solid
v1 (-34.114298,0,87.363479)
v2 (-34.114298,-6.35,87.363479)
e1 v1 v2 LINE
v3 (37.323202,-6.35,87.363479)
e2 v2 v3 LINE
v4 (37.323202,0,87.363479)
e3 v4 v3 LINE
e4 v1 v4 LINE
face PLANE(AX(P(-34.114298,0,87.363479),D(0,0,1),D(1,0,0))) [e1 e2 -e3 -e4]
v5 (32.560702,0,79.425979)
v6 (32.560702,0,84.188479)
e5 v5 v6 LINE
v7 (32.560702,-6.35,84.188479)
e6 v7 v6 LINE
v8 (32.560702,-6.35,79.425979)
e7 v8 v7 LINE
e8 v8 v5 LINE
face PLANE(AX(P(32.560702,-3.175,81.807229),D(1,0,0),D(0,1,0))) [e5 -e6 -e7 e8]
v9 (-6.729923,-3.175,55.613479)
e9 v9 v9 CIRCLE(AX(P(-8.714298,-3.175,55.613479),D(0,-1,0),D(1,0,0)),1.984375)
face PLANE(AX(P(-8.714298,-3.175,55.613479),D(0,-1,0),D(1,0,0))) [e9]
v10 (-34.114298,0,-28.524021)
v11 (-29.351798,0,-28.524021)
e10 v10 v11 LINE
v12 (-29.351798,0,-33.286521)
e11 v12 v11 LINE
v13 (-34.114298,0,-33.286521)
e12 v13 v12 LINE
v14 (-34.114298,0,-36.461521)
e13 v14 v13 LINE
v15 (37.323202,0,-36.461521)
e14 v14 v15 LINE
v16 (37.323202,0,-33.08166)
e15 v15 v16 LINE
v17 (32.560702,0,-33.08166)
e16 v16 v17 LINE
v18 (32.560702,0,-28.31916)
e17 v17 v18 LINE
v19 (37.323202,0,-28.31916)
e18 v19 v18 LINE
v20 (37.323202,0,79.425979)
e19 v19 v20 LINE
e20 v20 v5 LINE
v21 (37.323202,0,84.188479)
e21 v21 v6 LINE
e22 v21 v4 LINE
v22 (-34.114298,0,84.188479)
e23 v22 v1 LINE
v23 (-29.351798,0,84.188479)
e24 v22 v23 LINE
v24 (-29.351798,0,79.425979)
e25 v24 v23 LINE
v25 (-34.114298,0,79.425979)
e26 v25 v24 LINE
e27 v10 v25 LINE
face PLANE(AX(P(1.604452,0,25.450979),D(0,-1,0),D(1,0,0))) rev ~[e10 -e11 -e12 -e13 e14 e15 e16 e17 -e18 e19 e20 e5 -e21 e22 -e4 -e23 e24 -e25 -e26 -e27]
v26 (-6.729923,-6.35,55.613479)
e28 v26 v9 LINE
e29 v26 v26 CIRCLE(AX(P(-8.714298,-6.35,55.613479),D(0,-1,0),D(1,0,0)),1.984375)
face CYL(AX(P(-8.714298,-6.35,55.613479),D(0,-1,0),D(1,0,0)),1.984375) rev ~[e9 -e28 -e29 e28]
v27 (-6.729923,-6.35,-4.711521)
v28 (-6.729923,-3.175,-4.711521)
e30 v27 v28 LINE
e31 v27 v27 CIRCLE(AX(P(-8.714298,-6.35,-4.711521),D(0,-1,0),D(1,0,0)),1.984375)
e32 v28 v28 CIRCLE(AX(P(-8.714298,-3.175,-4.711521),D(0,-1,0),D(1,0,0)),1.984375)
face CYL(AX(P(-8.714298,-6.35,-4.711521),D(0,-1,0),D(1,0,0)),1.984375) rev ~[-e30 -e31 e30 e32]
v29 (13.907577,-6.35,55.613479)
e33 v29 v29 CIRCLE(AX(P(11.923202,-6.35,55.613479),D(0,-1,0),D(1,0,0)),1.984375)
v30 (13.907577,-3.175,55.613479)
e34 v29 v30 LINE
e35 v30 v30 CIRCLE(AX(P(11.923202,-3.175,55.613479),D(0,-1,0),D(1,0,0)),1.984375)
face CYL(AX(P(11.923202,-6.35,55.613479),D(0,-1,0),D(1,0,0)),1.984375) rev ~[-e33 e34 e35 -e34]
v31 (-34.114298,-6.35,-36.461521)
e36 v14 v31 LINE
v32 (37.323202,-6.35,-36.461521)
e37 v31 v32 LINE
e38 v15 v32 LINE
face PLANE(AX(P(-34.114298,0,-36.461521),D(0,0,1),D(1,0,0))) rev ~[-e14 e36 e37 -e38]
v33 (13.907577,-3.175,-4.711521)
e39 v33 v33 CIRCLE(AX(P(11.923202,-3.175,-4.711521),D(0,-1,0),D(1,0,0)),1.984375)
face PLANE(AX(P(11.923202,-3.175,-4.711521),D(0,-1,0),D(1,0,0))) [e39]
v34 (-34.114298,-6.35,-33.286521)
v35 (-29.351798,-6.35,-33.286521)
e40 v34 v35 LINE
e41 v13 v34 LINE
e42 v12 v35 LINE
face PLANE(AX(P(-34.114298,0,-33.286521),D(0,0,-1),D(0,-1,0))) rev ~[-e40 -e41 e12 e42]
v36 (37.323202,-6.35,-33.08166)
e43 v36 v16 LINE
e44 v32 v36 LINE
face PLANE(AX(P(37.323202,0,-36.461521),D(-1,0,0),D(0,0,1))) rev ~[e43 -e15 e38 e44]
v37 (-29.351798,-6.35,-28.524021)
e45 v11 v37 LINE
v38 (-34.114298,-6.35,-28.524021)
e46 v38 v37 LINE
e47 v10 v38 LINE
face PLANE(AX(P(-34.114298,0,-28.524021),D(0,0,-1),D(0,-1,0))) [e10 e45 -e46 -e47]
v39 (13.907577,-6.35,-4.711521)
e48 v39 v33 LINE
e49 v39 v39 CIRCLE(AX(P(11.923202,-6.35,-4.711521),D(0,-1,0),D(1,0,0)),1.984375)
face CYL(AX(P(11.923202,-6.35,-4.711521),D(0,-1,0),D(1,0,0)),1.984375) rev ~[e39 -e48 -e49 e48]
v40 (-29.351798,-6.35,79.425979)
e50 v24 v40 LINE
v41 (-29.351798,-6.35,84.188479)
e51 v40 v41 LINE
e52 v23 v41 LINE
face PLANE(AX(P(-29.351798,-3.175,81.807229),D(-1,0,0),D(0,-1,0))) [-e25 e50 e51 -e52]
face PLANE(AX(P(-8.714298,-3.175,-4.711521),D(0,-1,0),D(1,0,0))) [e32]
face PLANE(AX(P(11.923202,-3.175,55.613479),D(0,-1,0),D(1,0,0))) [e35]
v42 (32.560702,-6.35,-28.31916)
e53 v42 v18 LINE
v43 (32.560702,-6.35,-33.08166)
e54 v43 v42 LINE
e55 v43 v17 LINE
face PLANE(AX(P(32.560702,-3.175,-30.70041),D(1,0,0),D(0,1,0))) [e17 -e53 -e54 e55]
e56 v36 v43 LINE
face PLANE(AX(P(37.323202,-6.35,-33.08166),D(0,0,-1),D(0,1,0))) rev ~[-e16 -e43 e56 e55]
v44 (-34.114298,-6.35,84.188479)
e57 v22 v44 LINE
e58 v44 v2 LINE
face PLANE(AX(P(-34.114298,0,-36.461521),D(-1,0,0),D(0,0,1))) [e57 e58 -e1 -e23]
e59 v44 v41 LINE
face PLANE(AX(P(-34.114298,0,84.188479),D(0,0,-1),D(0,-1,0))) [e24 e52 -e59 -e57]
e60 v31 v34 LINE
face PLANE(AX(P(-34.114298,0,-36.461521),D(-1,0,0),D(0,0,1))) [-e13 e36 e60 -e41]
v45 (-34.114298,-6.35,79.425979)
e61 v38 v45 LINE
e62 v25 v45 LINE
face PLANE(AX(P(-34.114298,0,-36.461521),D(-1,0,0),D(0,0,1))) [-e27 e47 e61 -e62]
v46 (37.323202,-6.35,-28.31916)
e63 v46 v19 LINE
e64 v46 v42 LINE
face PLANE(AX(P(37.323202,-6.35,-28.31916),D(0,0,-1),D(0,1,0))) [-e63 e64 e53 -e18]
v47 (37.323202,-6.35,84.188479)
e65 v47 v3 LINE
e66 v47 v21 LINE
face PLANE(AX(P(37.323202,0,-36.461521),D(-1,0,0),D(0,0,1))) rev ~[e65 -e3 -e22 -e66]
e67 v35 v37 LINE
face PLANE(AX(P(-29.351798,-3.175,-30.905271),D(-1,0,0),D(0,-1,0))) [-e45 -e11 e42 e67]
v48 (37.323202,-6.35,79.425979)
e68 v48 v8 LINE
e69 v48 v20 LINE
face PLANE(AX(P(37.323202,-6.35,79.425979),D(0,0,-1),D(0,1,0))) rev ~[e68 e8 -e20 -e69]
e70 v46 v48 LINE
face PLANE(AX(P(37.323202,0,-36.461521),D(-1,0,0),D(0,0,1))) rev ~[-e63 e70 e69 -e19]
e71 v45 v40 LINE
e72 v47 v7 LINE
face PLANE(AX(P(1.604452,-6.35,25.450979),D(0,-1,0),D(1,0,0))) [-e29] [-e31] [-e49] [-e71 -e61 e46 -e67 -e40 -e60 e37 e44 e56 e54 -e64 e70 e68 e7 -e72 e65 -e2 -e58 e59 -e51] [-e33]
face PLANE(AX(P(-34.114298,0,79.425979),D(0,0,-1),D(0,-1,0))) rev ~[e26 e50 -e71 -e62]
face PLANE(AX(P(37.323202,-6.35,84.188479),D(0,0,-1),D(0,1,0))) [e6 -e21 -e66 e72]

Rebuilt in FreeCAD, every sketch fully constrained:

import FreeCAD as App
import Part
import Sketcher
from FreeCAD import Vector
Q = App.Units.Quantity


def add_polygon(sketch, points):
    """Adds a closed chain of lines whose ends are joined by coincident constraints."""
    first, n = sketch.GeometryCount, len(points)
    for a, b in zip(points, points[1:] + points[:1]):
        sketch.addGeometry(Part.LineSegment(App.Vector(*a, 0), App.Vector(*b, 0)), False)
    for i in range(n):
        sketch.addConstraint(Sketcher.Constraint("Coincident", first + i, 2, first + (i + 1) % n, 1))

doc = App.newDocument("Part")
params = doc.addObject("Spreadsheet::Sheet", "Params")
for row, (alias, value) in enumerate([
    ("sketch1_width", "2.8125 in"),
    ("sketch1_height", "4.875 in"),
    ("pad1_length", "0.25 in"),
    ("sketch2_width", "0.25 in"),
    ("sketch2_height", "0.1875 in"),
    ("pocket1_length", "0.1875 in"),
    ("sketch3_width", "0.25 in"),
    ("sketch3_height", "0.1875 in"),
    ("pocket2_length", "0.1875 in"),
    ("sketch4_width", "0.25 in"),
    ("sketch4_height", "0.1875 in"),
    ("pocket3_length", "0.1875 in"),
    ("sketch5_width", "0.25 in"),
    ("sketch5_height", "0.1875 in"),
    ("pocket4_length", "0.1875 in"),
    ("sketch6_diameter", "0.15625 in"),
    ("pocket5_length", "0.125 in"),
], start=1):
    params.set(f"A{row}", alias)
    params.set(f"B{row}", "=" + value)
    params.setAlias(f"B{row}", alias)

body = doc.addObject("PartDesign::Body", "Body")

# Sketch on XZ plane
sketch1 = doc.addObject("Sketcher::SketchObject", "Sketch")
body.addObject(sketch1)
sketch1.AttachmentSupport = (doc.XZ_Plane, [""])
sketch1.MapMode = "FlatFace"
add_polygon(sketch1, [(-34.114298, 87.363479), (-34.114298, -36.461521), (37.323202, -36.461521), (37.323202, 87.363479)])  # lines 0-3
sketch1.addConstraint([
    Sketcher.Constraint("Vertical", 0),
    Sketcher.Constraint("Horizontal", 1),
    Sketcher.Constraint("Vertical", 2),
    Sketcher.Constraint("Horizontal", 3),
    Sketcher.Constraint("DistanceX", 1, 1, 1, 2, Q("2.8125 in")),
    Sketcher.Constraint("DistanceY", 0, 2, 0, 1, Q("4.875 in")),
    Sketcher.Constraint("DistanceY", 0, 2, -1, 1, Q("36.461521 mm")),
    Sketcher.Constraint("DistanceX", 0, 2, -1, 1, Q("34.114298 mm")),
])
sketch1.setExpression("Constraints[8]", "Params.sketch1_width")
sketch1.setExpression("Constraints[9]", "Params.sketch1_height")
pad1 = doc.addObject("PartDesign::Pad", "Pad")
body.addObject(pad1)
pad1.Profile = sketch1
pad1.setExpression("Length", "Params.pad1_length")

# Sketch on YZ plane
sketch2 = doc.addObject("Sketcher::SketchObject", "Sketch001")
body.addObject(sketch2)
sketch2.AttachmentSupport = (doc.YZ_Plane, [""])
sketch2.MapMode = "FlatFace"
sketch2.AttachmentOffset = App.Placement(Vector(0, 0, 37.323202), App.Rotation())
add_polygon(sketch2, [(-6.35, 84.188479), (-6.35, 79.425979), (0, 79.425979), (0, 84.188479)])  # lines 0-3
sketch2.addConstraint([
    Sketcher.Constraint("Vertical", 0),
    Sketcher.Constraint("Horizontal", 1),
    Sketcher.Constraint("Vertical", 2),
    Sketcher.Constraint("Horizontal", 3),
    Sketcher.Constraint("PointOnObject", 1, 2, -2),
    Sketcher.Constraint("DistanceX", 1, 1, 1, 2, Q("0.25 in")),
    Sketcher.Constraint("DistanceY", 0, 2, 0, 1, Q("0.1875 in")),
    Sketcher.Constraint("DistanceY", -1, 1, 0, 2, Q("79.425979 mm")),
])
sketch2.setExpression("Constraints[9]", "Params.sketch2_width")
sketch2.setExpression("Constraints[10]", "Params.sketch2_height")
pocket1 = doc.addObject("PartDesign::Pocket", "Pocket")
body.addObject(pocket1)
pocket1.Profile = sketch2
pocket1.setExpression("Length", "Params.pocket1_length")

# Sketch on YZ plane
sketch3 = doc.addObject("Sketcher::SketchObject", "Sketch002")
body.addObject(sketch3)
sketch3.AttachmentSupport = (doc.YZ_Plane, [""])
sketch3.MapMode = "FlatFace"
sketch3.AttachmentOffset = App.Placement(Vector(0, 0, 37.323202), App.Rotation())
add_polygon(sketch3, [(-6.35, -28.31916), (-6.35, -33.08166), (0, -33.08166), (0, -28.31916)])  # lines 0-3
sketch3.addConstraint([
    Sketcher.Constraint("Vertical", 0),
    Sketcher.Constraint("Horizontal", 1),
    Sketcher.Constraint("Vertical", 2),
    Sketcher.Constraint("Horizontal", 3),
    Sketcher.Constraint("PointOnObject", 1, 2, -2),
    Sketcher.Constraint("DistanceX", 1, 1, 1, 2, Q("0.25 in")),
    Sketcher.Constraint("DistanceY", 0, 2, 0, 1, Q("0.1875 in")),
    Sketcher.Constraint("DistanceY", 0, 2, -1, 1, Q("33.08166 mm")),
])
sketch3.setExpression("Constraints[9]", "Params.sketch3_width")
sketch3.setExpression("Constraints[10]", "Params.sketch3_height")
pocket2 = doc.addObject("PartDesign::Pocket", "Pocket001")
body.addObject(pocket2)
pocket2.Profile = sketch3
pocket2.setExpression("Length", "Params.pocket2_length")

# Sketch on YZ plane
sketch4 = doc.addObject("Sketcher::SketchObject", "Sketch003")
body.addObject(sketch4)
sketch4.AttachmentSupport = (doc.YZ_Plane, [""])
sketch4.MapMode = "FlatFace"
sketch4.AttachmentOffset = App.Placement(Vector(0, 0, -34.114298), App.Rotation())
add_polygon(sketch4, [(0, 84.188479), (0, 79.425979), (-6.35, 79.425979), (-6.35, 84.188479)])  # lines 0-3
sketch4.addConstraint([
    Sketcher.Constraint("Vertical", 0),
    Sketcher.Constraint("Horizontal", 1),
    Sketcher.Constraint("Vertical", 2),
    Sketcher.Constraint("Horizontal", 3),
    Sketcher.Constraint("PointOnObject", 0, 2, -2),
    Sketcher.Constraint("DistanceX", 1, 2, 1, 1, Q("0.25 in")),
    Sketcher.Constraint("DistanceY", 0, 2, 0, 1, Q("0.1875 in")),
    Sketcher.Constraint("DistanceY", -1, 1, 0, 2, Q("79.425979 mm")),
])
sketch4.setExpression("Constraints[9]", "Params.sketch4_width")
sketch4.setExpression("Constraints[10]", "Params.sketch4_height")
pocket3 = doc.addObject("PartDesign::Pocket", "Pocket002")
body.addObject(pocket3)
pocket3.Profile = sketch4
pocket3.setExpression("Length", "Params.pocket3_length")
pocket3.Reversed = True

# Sketch on YZ plane
sketch5 = doc.addObject("Sketcher::SketchObject", "Sketch004")
body.addObject(sketch5)
sketch5.AttachmentSupport = (doc.YZ_Plane, [""])
sketch5.MapMode = "FlatFace"
sketch5.AttachmentOffset = App.Placement(Vector(0, 0, -34.114298), App.Rotation())
add_polygon(sketch5, [(0, -28.524021), (0, -33.286521), (-6.35, -33.286521), (-6.35, -28.524021)])  # lines 0-3
sketch5.addConstraint([
    Sketcher.Constraint("Vertical", 0),
    Sketcher.Constraint("Horizontal", 1),
    Sketcher.Constraint("Vertical", 2),
    Sketcher.Constraint("Horizontal", 3),
    Sketcher.Constraint("PointOnObject", 0, 2, -2),
    Sketcher.Constraint("DistanceX", 1, 2, 1, 1, Q("0.25 in")),
    Sketcher.Constraint("DistanceY", 0, 2, 0, 1, Q("0.1875 in")),
    Sketcher.Constraint("DistanceY", 0, 2, -1, 1, Q("33.286521 mm")),
])
sketch5.setExpression("Constraints[9]", "Params.sketch5_width")
sketch5.setExpression("Constraints[10]", "Params.sketch5_height")
pocket4 = doc.addObject("PartDesign::Pocket", "Pocket003")
body.addObject(pocket4)
pocket4.Profile = sketch5
pocket4.setExpression("Length", "Params.pocket4_length")
pocket4.Reversed = True

# Sketch on XZ plane
sketch6 = doc.addObject("Sketcher::SketchObject", "Sketch005")
body.addObject(sketch6)
sketch6.AttachmentSupport = (doc.XZ_Plane, [""])
sketch6.MapMode = "FlatFace"
sketch6.AttachmentOffset = App.Placement(Vector(0, 0, 0.25 * 25.4), App.Rotation())
sketch6.addGeometry([
    Part.Circle(Vector(-8.714298, 55.613479, 0), Vector(0, 0, 1), 1.984375),
    Part.Circle(Vector(11.923202, 55.613479, 0), Vector(0, 0, 1), 1.984375),
    Part.Circle(Vector(-8.714298, -4.711521, 0), Vector(0, 0, 1), 1.984375),
    Part.Circle(Vector(11.923202, -4.711521, 0), Vector(0, 0, 1), 1.984375),
], False)
sketch6.addConstraint([
    Sketcher.Constraint("Equal", 0, 1),
    Sketcher.Constraint("Equal", 1, 2),
    Sketcher.Constraint("Equal", 2, 3),
    Sketcher.Constraint("Horizontal", 0, 3, 1, 3),
    Sketcher.Constraint("Horizontal", 2, 3, 3, 3),
    Sketcher.Constraint("Vertical", 0, 3, 2, 3),
    Sketcher.Constraint("Vertical", 1, 3, 3, 3),
    Sketcher.Constraint("Diameter", 0, Q("0.15625 in")),
    Sketcher.Constraint("DistanceX", 0, 3, 1, 3, Q("0.8125 in")),
    Sketcher.Constraint("DistanceY", 2, 3, 0, 3, Q("2.375 in")),
    Sketcher.Constraint("DistanceY", -1, 1, 0, 3, Q("55.613479 mm")),
    Sketcher.Constraint("DistanceX", 0, 3, -1, 1, Q("8.714298 mm")),
])
sketch6.setExpression("Constraints[7]", "Params.sketch6_diameter")
pocket5 = doc.addObject("PartDesign::Pocket", "Pocket004")
body.addObject(pocket5)
pocket5.Profile = sketch6
pocket5.setExpression("Length", "Params.pocket5_length")

doc.recompute()
